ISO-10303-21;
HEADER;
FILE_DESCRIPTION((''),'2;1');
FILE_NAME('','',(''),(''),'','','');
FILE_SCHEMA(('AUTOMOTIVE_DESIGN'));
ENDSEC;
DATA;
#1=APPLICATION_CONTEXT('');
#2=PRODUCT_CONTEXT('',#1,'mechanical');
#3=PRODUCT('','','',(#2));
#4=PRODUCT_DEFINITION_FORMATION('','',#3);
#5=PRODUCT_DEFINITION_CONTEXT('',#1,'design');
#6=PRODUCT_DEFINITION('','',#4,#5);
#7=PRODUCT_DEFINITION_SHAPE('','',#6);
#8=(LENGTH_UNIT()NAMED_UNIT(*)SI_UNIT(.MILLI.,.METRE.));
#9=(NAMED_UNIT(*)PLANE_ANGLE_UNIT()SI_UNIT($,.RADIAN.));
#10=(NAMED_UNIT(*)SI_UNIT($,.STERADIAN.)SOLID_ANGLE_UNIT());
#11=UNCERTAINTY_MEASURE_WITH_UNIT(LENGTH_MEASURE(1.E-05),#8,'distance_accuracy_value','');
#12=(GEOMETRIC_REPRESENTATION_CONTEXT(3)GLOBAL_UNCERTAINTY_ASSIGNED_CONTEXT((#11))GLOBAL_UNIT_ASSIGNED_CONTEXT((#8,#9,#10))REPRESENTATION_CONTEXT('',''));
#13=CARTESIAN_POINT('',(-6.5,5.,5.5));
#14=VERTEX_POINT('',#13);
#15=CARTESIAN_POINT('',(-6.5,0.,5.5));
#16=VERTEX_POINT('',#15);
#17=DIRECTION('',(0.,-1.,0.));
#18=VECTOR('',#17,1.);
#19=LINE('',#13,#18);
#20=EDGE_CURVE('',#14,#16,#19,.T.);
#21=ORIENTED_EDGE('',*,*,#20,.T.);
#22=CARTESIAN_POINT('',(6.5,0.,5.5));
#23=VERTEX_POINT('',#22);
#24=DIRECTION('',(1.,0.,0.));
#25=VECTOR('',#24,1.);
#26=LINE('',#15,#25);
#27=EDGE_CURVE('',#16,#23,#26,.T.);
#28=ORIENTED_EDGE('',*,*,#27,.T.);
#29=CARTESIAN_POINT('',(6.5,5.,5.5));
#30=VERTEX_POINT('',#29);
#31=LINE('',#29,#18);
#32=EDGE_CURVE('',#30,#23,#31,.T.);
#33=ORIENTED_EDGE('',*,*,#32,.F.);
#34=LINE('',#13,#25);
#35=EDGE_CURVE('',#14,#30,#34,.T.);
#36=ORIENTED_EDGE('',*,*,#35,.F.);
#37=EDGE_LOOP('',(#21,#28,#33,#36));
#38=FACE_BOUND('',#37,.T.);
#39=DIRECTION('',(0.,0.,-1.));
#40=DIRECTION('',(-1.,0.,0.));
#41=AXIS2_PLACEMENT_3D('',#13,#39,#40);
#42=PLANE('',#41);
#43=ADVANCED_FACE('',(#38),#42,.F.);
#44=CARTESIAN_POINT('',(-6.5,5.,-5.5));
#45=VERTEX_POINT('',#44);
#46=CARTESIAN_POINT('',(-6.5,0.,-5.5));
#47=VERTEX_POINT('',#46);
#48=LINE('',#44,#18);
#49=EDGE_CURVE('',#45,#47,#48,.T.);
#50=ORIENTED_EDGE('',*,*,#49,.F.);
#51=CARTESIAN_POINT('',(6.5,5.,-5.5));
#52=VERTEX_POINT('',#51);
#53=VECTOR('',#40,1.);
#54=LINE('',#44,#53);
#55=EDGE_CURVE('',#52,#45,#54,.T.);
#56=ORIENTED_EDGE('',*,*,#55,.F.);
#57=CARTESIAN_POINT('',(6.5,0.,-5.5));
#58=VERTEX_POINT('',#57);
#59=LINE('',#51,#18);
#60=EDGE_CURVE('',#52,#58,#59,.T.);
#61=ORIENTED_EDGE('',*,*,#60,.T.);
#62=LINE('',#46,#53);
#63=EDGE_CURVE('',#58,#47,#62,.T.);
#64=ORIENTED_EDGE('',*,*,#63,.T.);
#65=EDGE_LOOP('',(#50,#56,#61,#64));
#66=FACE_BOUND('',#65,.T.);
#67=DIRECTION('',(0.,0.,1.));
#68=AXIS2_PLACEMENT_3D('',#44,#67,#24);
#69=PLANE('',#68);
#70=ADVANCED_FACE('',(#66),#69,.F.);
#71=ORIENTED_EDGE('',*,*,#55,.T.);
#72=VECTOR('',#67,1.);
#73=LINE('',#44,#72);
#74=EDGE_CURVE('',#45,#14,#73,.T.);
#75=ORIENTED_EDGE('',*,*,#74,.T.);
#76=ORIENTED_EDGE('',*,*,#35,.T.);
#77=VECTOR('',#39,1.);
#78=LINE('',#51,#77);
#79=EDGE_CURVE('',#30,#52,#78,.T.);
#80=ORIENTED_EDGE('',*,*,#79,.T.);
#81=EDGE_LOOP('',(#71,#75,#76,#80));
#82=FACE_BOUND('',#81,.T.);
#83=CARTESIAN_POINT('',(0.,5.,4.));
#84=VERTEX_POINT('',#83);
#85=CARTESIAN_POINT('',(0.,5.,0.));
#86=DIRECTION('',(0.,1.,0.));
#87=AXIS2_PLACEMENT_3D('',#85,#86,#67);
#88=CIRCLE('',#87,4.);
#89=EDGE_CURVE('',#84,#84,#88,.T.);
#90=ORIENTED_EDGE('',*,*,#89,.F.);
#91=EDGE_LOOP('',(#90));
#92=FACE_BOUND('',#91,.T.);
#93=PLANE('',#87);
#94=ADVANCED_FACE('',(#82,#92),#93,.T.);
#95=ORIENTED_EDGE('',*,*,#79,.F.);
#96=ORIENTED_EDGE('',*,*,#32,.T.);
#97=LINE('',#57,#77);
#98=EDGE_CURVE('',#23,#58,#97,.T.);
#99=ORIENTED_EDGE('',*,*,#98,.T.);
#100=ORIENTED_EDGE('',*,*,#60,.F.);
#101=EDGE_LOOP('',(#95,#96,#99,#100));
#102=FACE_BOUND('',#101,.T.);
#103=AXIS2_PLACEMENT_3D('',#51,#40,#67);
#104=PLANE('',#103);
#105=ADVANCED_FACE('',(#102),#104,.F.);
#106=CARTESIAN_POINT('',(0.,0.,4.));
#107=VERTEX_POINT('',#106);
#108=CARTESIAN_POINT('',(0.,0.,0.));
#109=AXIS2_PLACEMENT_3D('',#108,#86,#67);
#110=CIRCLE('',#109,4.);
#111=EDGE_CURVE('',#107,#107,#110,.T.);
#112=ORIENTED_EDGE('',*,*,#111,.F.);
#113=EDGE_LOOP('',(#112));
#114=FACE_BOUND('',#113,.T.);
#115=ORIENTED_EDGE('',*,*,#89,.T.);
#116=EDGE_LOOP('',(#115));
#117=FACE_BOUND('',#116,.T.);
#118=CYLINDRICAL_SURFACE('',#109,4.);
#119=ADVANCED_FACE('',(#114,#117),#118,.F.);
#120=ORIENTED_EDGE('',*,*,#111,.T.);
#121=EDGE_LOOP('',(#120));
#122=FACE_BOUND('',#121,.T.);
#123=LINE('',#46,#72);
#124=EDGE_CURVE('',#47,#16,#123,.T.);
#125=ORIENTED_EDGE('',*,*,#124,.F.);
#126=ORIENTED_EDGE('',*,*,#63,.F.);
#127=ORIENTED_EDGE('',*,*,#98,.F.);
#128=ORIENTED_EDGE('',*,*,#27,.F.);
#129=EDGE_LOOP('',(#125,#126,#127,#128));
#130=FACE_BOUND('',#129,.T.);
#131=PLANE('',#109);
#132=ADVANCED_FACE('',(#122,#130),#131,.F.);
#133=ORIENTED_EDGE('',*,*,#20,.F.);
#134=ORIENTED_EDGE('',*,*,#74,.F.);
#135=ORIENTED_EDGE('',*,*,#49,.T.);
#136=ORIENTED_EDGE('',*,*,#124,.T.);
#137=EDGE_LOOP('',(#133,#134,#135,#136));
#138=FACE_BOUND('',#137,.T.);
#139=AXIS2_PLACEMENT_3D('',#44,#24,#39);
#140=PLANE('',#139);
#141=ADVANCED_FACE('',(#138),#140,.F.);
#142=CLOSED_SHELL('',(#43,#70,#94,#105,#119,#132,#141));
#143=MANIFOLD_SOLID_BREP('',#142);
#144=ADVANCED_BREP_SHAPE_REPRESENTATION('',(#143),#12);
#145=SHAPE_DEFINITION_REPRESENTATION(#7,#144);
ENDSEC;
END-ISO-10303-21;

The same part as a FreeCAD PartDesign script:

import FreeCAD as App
import Part
import Sketcher
from FreeCAD import Vector


def add_polygon(sketch, points):
    """Adds a closed chain of lines whose ends are joined by coincident constraints."""
    first, n = sketch.GeometryCount, len(points)
    for a, b in zip(points, points[1:] + points[:1]):
        sketch.addGeometry(Part.LineSegment(App.Vector(*a, 0), App.Vector(*b, 0)), False)
    for i in range(n):
        sketch.addConstraint(Sketcher.Constraint("Coincident", first + i, 2, first + (i + 1) % n, 1))

doc = App.newDocument("Part")
body = doc.addObject("PartDesign::Body", "Body")

# Sketch on XZ plane
sketch1 = body.newObject("Sketcher::SketchObject", "Sketch")
sketch1.AttachmentSupport = (doc.getObject("XZ_Plane"), [""])
sketch1.MapMode = "FlatFace"
add_polygon(sketch1, [(-6, -6), (-6, 6), (6, 6), (6, -6)])  # lines 0-3
sketch1.addConstraint(Sketcher.Constraint("Vertical", 0))
sketch1.addConstraint(Sketcher.Constraint("Horizontal", 1))
sketch1.addConstraint(Sketcher.Constraint("Vertical", 2))
sketch1.addConstraint(Sketcher.Constraint("Horizontal", 3))
sketch1.addConstraint(Sketcher.Constraint("Symmetric", 0, 2, 2, 2, -1, 1))
sketch1.addConstraint(Sketcher.Constraint("DistanceX", 1, 1, 1, 2, 13.0))
sketch1.addConstraint(Sketcher.Constraint("DistanceY", 0, 1, 0, 2, 11.0))
pad1 = body.newObject("PartDesign::Pad", "Pad")
pad1.Profile = sketch1
pad1.Length = 5
pad1.Reversed = True

# Sketch on XZ plane
sketch2 = body.newObject("Sketcher::SketchObject", "Sketch001")
sketch2.AttachmentSupport = (doc.getObject("XZ_Plane"), [""])
sketch2.MapMode = "FlatFace"
sketch2.AttachmentOffset = App.Placement(Vector(0, 0, -5), App.Rotation())
sketch2.addGeometry(Part.Circle(Vector(0, 0, 0), Vector(0, 0, 1), 4), False)
sketch2.addConstraint(Sketcher.Constraint("Coincident", 0, 3, -1, 1))
sketch2.addConstraint(Sketcher.Constraint("Diameter", 0, 8.0))
pocket1 = body.newObject("PartDesign::Pocket", "Pocket")
pocket1.Profile = sketch2
pocket1.Length = 5
pocket1.Reversed = True

doc.recompute()
